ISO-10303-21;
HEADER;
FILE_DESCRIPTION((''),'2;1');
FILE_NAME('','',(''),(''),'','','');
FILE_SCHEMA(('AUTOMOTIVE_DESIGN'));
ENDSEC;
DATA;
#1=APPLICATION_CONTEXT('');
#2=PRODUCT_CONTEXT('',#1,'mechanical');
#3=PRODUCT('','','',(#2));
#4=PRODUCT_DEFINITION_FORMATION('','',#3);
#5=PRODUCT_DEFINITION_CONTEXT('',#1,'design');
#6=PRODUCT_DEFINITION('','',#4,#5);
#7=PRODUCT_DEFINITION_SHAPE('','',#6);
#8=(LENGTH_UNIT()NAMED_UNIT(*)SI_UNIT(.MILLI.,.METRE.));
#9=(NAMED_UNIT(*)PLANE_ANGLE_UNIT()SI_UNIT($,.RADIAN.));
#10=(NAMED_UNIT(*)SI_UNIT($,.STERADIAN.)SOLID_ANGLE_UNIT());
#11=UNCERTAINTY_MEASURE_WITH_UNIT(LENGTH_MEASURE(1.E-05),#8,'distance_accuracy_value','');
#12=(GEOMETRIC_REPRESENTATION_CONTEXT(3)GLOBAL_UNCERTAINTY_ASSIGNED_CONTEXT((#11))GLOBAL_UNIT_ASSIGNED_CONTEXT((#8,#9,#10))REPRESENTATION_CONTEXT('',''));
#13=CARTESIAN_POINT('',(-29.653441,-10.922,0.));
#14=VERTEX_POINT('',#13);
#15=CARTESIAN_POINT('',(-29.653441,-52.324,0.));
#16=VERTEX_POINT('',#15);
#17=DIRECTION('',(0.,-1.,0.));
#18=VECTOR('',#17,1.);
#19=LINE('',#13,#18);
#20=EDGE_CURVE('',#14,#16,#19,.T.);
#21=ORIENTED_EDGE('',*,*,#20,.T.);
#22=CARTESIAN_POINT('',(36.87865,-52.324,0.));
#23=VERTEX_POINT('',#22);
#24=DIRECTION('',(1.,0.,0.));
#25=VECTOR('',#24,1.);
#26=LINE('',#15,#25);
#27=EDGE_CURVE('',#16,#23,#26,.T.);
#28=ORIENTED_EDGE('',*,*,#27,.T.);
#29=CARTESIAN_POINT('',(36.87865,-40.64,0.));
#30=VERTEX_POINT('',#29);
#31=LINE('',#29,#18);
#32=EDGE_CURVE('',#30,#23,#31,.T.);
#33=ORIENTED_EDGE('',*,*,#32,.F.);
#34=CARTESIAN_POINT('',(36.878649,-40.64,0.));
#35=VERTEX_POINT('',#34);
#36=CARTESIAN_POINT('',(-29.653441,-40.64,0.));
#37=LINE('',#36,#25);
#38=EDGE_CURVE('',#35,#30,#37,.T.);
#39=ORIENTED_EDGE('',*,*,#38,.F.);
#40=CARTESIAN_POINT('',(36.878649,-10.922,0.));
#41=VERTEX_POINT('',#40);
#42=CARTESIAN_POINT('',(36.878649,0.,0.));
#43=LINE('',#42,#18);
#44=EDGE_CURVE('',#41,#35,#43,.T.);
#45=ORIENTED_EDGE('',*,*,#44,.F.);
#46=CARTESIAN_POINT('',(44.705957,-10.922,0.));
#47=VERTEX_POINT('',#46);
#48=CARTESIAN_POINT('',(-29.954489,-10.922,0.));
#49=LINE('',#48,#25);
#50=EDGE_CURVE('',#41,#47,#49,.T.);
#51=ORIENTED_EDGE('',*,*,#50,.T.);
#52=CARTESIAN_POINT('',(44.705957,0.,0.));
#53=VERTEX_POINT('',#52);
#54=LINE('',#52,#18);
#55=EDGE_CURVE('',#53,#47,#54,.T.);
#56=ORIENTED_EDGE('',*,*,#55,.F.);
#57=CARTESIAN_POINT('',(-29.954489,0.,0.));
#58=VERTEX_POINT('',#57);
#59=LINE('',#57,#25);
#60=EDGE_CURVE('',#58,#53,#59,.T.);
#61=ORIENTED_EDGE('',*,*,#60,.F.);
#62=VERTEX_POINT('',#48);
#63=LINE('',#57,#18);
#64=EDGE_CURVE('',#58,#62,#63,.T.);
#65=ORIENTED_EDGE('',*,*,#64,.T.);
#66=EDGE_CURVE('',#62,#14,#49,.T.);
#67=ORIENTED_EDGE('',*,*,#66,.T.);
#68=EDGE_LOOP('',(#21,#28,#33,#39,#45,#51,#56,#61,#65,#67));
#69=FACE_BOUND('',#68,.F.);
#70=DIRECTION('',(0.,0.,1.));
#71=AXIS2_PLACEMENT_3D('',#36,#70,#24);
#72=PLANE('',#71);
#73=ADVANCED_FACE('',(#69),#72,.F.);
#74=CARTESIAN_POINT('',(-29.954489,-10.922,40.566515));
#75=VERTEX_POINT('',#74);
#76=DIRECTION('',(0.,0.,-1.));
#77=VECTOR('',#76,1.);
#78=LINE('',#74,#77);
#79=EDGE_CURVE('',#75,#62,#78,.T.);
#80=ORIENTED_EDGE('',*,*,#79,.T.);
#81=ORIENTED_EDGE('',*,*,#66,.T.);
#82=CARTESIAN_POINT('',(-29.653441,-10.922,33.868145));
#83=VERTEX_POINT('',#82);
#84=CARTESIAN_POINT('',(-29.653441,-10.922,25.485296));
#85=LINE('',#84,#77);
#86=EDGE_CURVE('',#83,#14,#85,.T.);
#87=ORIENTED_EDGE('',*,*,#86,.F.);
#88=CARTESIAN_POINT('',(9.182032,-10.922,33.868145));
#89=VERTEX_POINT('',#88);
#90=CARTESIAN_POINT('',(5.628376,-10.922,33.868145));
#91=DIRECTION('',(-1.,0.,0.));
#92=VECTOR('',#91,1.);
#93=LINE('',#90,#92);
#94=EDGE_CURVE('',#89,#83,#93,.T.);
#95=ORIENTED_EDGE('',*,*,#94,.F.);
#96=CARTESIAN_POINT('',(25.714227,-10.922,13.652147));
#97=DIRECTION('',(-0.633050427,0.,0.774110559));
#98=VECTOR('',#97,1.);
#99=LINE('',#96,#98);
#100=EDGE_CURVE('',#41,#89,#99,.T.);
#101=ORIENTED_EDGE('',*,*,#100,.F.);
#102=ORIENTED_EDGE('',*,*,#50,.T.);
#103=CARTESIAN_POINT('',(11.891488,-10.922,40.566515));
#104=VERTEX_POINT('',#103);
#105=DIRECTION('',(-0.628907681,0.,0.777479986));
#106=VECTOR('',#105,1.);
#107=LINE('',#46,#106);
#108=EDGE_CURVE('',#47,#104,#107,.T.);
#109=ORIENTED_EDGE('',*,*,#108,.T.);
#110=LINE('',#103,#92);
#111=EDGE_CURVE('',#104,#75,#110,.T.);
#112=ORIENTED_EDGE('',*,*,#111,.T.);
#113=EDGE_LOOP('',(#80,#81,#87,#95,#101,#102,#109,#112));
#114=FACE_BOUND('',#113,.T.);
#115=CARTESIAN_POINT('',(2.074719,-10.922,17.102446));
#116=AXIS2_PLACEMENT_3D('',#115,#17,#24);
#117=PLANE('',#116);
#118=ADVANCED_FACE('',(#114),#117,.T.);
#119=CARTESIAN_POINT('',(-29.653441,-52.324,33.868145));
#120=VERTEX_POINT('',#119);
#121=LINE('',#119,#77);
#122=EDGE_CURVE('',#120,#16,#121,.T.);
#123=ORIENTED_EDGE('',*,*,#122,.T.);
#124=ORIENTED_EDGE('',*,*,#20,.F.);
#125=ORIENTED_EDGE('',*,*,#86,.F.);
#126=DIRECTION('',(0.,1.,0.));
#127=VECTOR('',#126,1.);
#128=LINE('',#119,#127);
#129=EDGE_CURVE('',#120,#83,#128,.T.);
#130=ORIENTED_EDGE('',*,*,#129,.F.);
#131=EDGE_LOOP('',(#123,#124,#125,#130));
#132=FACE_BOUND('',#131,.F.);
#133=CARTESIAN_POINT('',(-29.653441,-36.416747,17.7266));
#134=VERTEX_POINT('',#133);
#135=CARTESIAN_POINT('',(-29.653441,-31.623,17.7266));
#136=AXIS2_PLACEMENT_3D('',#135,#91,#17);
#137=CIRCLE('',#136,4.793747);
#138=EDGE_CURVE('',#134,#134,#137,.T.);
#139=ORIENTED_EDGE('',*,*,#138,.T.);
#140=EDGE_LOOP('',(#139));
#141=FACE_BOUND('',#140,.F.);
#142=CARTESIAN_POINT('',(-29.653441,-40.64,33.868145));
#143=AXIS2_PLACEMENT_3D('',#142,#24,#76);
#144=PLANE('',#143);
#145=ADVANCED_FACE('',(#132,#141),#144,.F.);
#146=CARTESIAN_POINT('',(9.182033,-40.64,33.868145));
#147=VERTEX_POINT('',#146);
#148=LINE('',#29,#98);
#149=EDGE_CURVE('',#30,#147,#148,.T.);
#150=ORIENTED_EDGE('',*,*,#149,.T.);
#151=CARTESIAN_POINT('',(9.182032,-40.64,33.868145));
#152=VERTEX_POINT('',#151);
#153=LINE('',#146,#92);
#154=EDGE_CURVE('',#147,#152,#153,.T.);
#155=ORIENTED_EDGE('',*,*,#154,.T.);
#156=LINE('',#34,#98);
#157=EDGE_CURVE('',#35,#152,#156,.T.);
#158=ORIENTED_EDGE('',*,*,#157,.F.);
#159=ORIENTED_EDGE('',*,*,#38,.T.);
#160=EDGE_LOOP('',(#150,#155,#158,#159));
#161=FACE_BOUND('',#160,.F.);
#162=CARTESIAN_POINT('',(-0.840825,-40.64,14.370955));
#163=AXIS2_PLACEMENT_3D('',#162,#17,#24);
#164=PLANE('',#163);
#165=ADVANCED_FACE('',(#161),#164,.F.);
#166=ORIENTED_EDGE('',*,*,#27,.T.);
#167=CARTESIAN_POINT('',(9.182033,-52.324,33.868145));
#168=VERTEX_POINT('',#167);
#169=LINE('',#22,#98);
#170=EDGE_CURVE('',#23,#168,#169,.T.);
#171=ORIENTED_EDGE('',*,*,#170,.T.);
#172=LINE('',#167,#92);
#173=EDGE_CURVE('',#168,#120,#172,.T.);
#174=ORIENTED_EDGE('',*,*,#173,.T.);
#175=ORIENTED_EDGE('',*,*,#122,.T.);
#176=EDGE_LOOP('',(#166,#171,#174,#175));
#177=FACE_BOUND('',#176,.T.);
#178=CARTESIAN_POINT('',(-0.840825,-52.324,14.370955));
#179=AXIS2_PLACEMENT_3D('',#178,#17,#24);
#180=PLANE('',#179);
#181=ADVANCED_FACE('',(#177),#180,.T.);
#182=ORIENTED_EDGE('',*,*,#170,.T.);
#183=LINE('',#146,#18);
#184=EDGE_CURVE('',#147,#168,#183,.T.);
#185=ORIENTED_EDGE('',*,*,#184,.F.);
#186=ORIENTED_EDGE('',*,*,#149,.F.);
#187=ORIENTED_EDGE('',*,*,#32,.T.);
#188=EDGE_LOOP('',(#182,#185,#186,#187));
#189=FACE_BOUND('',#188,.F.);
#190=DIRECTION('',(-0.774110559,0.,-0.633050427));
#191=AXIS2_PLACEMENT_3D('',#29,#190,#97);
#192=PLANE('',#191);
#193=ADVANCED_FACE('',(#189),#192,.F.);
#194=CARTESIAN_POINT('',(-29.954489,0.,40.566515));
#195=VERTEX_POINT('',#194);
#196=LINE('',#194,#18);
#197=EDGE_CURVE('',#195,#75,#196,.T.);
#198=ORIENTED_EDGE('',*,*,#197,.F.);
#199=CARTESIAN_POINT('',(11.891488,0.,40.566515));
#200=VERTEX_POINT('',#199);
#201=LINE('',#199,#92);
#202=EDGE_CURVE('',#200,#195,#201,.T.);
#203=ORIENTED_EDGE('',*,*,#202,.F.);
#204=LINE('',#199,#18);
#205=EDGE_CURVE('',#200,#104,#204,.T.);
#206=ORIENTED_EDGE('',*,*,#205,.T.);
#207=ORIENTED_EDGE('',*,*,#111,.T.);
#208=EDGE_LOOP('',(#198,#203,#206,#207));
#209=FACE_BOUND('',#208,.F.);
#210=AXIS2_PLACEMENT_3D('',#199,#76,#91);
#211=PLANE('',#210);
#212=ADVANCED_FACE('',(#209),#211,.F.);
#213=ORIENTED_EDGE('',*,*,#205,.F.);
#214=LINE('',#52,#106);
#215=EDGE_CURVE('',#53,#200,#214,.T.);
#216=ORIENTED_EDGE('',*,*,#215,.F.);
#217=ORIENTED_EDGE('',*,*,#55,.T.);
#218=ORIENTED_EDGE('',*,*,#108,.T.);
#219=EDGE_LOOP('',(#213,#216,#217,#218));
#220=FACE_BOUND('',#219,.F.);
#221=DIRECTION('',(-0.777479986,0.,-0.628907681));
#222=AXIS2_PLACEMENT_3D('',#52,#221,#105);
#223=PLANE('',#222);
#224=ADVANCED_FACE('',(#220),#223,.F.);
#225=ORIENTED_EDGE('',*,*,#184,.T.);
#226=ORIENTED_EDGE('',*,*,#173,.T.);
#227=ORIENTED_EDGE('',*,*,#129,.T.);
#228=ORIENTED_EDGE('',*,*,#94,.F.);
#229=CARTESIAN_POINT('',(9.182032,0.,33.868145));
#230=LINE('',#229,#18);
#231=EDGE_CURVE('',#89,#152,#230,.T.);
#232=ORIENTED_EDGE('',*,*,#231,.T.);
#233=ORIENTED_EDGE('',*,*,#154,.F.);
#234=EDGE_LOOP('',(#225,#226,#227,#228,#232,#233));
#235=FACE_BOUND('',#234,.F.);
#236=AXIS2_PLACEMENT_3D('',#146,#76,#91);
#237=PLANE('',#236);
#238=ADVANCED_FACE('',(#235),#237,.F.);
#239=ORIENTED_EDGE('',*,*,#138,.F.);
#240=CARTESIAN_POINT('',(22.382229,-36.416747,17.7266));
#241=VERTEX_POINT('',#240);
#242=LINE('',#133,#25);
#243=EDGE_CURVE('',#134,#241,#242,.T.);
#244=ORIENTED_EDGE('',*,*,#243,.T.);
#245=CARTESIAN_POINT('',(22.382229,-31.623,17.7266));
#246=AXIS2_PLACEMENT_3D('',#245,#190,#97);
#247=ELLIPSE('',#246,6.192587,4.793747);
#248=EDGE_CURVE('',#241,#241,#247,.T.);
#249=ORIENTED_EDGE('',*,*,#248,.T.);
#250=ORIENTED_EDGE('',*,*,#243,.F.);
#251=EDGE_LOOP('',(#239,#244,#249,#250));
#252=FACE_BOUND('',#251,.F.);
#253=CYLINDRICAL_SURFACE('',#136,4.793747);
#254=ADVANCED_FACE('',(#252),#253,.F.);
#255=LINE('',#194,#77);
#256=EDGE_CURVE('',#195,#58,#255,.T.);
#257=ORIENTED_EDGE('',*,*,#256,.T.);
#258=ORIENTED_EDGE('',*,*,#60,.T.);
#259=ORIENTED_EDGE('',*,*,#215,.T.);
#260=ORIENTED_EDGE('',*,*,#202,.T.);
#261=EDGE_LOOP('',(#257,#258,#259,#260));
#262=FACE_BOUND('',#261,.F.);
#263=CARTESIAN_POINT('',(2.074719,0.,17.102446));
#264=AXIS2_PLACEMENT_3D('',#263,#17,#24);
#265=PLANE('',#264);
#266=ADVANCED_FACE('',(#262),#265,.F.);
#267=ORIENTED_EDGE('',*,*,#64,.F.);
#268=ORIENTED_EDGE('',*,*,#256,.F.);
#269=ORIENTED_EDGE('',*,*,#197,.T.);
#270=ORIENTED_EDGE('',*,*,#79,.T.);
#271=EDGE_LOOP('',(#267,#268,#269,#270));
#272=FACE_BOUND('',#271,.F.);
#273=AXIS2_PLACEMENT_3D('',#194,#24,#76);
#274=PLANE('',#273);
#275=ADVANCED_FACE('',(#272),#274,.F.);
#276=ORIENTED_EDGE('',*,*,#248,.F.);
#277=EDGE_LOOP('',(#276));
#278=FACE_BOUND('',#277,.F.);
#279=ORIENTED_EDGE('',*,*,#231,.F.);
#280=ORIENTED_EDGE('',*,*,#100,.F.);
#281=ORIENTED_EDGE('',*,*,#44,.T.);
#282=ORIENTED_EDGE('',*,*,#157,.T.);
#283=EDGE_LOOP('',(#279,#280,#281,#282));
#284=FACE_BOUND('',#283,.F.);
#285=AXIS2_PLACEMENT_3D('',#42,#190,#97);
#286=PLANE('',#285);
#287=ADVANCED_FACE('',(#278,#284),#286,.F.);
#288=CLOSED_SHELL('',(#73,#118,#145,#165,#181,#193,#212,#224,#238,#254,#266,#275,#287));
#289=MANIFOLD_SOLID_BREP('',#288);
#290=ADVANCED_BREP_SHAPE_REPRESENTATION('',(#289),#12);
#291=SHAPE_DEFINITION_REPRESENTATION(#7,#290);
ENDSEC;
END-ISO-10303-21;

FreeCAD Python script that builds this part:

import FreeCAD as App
import Part
import Sketcher
from FreeCAD import Vector
Q = App.Units.Quantity

doc = App.newDocument("Part")
body = doc.addObject("PartDesign::Body", "Body")

# Sketch on XZ plane
sketch1 = doc.addObject("Sketcher::SketchObject", "Sketch")
body.addObject(sketch1)
sketch1.AttachmentSupport = (doc.XZ_Plane, [""])
sketch1.MapMode = "FlatFace"
sketch1.addGeometry(Part.LineSegment(Vector(-30, 34, 0), Vector(-30, 0, 0)), False)
sketch1.addGeometry(Part.LineSegment(Vector(-30, 0, 0), Vector(37, 0, 0)), False)
sketch1.addGeometry(Part.LineSegment(Vector(37, 0, 0), Vector(9, 34, 0)), False)
sketch1.addGeometry(Part.LineSegment(Vector(9, 34, 0), Vector(-30, 34, 0)), False)
sketch1.addConstraint(Sketcher.Constraint("Coincident", 0, 2, 1, 1))
sketch1.addConstraint(Sketcher.Constraint("Coincident", 1, 2, 2, 1))
sketch1.addConstraint(Sketcher.Constraint("Coincident", 2, 2, 3, 1))
sketch1.addConstraint(Sketcher.Constraint("Coincident", 3, 2, 0, 1))
sketch1.addConstraint(Sketcher.Constraint("Vertical", 0))
sketch1.addConstraint(Sketcher.Constraint("Horizontal", 1))
sketch1.addConstraint(Sketcher.Constraint("Horizontal", 3))
sketch1.addConstraint(Sketcher.Constraint("PointOnObject", 0, 2, -1))
sketch1.addConstraint(Sketcher.Constraint("DistanceX", 1, 1, 1, 2, 66.53209))
sketch1.addConstraint(Sketcher.Constraint("DistanceX", 3, 2, 3, 1, 38.835473))
sketch1.addConstraint(Sketcher.Constraint("DistanceY", 0, 2, 0, 1, 33.868145))
sketch1.addConstraint(Sketcher.Constraint("DistanceX", 0, 2, -1, 1, 29.653441))
pad1 = doc.addObject("PartDesign::Pad", "Pad")
body.addObject(pad1)
pad1.Profile = sketch1
pad1.Length = Q("1.6 in")

# Sketch on XZ plane
sketch2 = doc.addObject("Sketcher::SketchObject", "Sketch001")
body.addObject(sketch2)
sketch2.AttachmentSupport = (doc.XZ_Plane, [""])
sketch2.MapMode = "FlatFace"
sketch2.addGeometry(Part.LineSegment(Vector(-30, 41, 0), Vector(-30, 0, 0)), False)
sketch2.addGeometry(Part.LineSegment(Vector(-30, 0, 0), Vector(45, 0, 0)), False)
sketch2.addGeometry(Part.LineSegment(Vector(45, 0, 0), Vector(12, 41, 0)), False)
sketch2.addGeometry(Part.LineSegment(Vector(12, 41, 0), Vector(-30, 41, 0)), False)
sketch2.addConstraint(Sketcher.Constraint("Coincident", 0, 2, 1, 1))
sketch2.addConstraint(Sketcher.Constraint("Coincident", 1, 2, 2, 1))
sketch2.addConstraint(Sketcher.Constraint("Coincident", 2, 2, 3, 1))
sketch2.addConstraint(Sketcher.Constraint("Coincident", 3, 2, 0, 1))
sketch2.addConstraint(Sketcher.Constraint("Vertical", 0))
sketch2.addConstraint(Sketcher.Constraint("Horizontal", 1))
sketch2.addConstraint(Sketcher.Constraint("Horizontal", 3))
sketch2.addConstraint(Sketcher.Constraint("PointOnObject", 0, 2, -1))
sketch2.addConstraint(Sketcher.Constraint("DistanceX", 1, 1, 1, 2, 74.660446))
sketch2.addConstraint(Sketcher.Constraint("DistanceX", 3, 2, 3, 1, 41.845977))
sketch2.addConstraint(Sketcher.Constraint("DistanceY", 0, 2, 0, 1, 40.566515))
sketch2.addConstraint(Sketcher.Constraint("DistanceX", 0, 2, -1, 1, 29.954489))
pad2 = doc.addObject("PartDesign::Pad", "Pad001")
body.addObject(pad2)
pad2.Profile = sketch2
pad2.Length = Q("0.43 in")

# Sketch on XZ plane
sketch3 = doc.addObject("Sketcher::SketchObject", "Sketch002")
body.addObject(sketch3)
sketch3.AttachmentSupport = (doc.XZ_Plane, [""])
sketch3.MapMode = "FlatFace"
sketch3.AttachmentOffset = App.Placement(Vector(0, 0, 1.6 * 25.4), App.Rotation())
sketch3.addGeometry(Part.LineSegment(Vector(-30, 34, 0), Vector(-30, 0, 0)), False)
sketch3.addGeometry(Part.LineSegment(Vector(-30, 0, 0), Vector(37, 0, 0)), False)
sketch3.addGeometry(Part.LineSegment(Vector(37, 0, 0), Vector(9, 34, 0)), False)
sketch3.addGeometry(Part.LineSegment(Vector(9, 34, 0), Vector(-30, 34, 0)), False)
sketch3.addConstraint(Sketcher.Constraint("Coincident", 0, 2, 1, 1))
sketch3.addConstraint(Sketcher.Constraint("Coincident", 1, 2, 2, 1))
sketch3.addConstraint(Sketcher.Constraint("Coincident", 2, 2, 3, 1))
sketch3.addConstraint(Sketcher.Constraint("Coincident", 3, 2, 0, 1))
sketch3.addConstraint(Sketcher.Constraint("Vertical", 0))
sketch3.addConstraint(Sketcher.Constraint("Horizontal", 1))
sketch3.addConstraint(Sketcher.Constraint("Horizontal", 3))
sketch3.addConstraint(Sketcher.Constraint("PointOnObject", 0, 2, -1))
sketch3.addConstraint(Sketcher.Constraint("DistanceX", 1, 1, 1, 2, 66.532091))
sketch3.addConstraint(Sketcher.Constraint("DistanceX", 3, 2, 3, 1, 38.835474))
sketch3.addConstraint(Sketcher.Constraint("DistanceY", 0, 2, 0, 1, 33.868145))
sketch3.addConstraint(Sketcher.Constraint("DistanceX", 0, 2, -1, 1, 29.653441))
pad3 = doc.addObject("PartDesign::Pad", "Pad002")
body.addObject(pad3)
pad3.Profile = sketch3
pad3.Length = Q("0.46 in")

# Sketch on YZ plane
sketch4 = doc.addObject("Sketcher::SketchObject", "Sketch003")
body.addObject(sketch4)
sketch4.AttachmentSupport = (doc.YZ_Plane, [""])
sketch4.MapMode = "FlatFace"
sketch4.AttachmentOffset = App.Placement(Vector(0, 0, -29.653441), App.Rotation())
sketch4.addGeometry(Part.Circle(Vector(-31.6, 17.7, 0), Vector(0, 0, 1), 4.8), False)
sketch4.addConstraint(Sketcher.Constraint("DistanceX", 0, 3, -1, 1, Q("1.245 in")))
sketch4.addConstraint(Sketcher.Constraint("Diameter", 0, 9.587494))
sketch4.addConstraint(Sketcher.Constraint("DistanceY", -1, 1, 0, 3, 17.7266))
pocket1 = doc.addObject("PartDesign::Pocket", "Pocket")
body.addObject(pocket1)
pocket1.Profile = sketch4
pocket1.Length = Q("4.1 in")
pocket1.Reversed = True

doc.recompute()
